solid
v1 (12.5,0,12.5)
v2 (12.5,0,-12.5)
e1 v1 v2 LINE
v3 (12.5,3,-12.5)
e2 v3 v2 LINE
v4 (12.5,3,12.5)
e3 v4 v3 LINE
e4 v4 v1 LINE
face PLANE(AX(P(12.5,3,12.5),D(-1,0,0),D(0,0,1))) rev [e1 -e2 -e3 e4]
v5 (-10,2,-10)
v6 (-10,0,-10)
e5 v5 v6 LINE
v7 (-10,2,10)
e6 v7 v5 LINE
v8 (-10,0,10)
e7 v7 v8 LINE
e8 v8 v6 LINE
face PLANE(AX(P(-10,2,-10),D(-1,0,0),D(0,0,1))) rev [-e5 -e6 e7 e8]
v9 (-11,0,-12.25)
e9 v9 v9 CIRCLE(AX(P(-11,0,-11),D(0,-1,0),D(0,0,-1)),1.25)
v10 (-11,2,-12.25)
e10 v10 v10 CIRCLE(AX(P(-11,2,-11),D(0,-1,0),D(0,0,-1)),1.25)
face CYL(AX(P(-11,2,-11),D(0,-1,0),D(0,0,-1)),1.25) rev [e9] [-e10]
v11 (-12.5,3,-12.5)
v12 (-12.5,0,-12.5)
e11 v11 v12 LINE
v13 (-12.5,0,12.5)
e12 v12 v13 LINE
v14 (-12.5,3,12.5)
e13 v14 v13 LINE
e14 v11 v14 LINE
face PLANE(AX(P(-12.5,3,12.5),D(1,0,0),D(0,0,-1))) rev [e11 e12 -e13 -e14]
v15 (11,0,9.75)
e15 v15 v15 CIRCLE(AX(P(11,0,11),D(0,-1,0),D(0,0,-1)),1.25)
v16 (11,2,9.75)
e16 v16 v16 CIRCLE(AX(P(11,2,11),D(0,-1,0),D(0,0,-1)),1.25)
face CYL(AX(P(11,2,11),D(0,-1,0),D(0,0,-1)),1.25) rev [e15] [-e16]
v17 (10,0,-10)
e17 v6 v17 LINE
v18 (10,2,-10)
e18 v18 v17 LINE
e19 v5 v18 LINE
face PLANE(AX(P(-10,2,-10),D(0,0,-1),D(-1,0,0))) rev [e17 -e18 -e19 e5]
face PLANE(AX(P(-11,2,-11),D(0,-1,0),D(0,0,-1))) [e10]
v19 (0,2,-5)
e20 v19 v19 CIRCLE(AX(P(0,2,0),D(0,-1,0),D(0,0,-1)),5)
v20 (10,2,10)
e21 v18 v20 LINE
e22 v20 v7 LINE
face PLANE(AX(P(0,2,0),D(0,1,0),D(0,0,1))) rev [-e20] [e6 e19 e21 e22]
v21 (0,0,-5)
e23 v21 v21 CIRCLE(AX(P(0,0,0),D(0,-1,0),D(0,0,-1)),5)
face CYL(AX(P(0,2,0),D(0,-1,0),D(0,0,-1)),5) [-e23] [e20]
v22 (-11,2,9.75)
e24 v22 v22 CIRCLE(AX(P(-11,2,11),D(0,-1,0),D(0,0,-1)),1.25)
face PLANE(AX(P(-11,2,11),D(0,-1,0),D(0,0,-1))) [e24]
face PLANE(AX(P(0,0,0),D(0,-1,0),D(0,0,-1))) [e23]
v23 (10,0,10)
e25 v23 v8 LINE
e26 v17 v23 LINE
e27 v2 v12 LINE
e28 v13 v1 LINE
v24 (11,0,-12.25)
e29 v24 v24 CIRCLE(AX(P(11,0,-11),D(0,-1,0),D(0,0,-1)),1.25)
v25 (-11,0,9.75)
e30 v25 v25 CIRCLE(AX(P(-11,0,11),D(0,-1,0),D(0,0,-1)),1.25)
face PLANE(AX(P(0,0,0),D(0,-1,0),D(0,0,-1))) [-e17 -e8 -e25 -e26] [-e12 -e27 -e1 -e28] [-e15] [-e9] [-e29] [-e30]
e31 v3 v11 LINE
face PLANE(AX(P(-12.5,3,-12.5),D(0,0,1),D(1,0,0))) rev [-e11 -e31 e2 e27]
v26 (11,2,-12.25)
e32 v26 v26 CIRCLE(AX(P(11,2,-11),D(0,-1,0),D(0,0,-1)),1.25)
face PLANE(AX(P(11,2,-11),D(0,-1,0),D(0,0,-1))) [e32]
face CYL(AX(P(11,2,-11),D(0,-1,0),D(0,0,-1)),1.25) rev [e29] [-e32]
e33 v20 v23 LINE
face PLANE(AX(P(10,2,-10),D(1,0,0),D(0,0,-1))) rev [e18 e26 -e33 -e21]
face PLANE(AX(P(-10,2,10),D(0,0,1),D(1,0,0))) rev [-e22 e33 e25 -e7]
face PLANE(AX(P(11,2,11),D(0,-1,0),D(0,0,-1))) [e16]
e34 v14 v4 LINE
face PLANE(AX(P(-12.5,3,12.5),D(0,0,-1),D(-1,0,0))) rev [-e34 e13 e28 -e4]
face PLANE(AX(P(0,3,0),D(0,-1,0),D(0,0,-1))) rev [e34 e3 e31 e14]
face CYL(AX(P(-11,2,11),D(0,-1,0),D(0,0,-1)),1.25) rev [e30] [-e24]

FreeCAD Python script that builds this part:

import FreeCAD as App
import Part
import Sketcher

V = App.Vector
Q = App.Units.Quantity

doc = App.newDocument("Part")
params = doc.addObject("Spreadsheet::Sheet", "Params")
for row, (alias, value) in enumerate([
    ("sketch1_width", "25 mm"),
    ("pad1_length", "3 mm"),
    ("sketch2_diameter", "10 mm"),
    ("sketch2_width", "20 mm"),
    ("pocket1_length", "2 mm"),
    ("sketch3_diameter", "2.5 mm"),
    ("pocket2_length", "2 mm"),
], start=1):
    params.set(f"A{row}", alias)
    params.set(f"B{row}", "=" + value)
    params.setAlias(f"B{row}", alias)

body = doc.addObject("PartDesign::Body", "Body")

# Sketch on XZ plane
sketch1 = body.newObject("Sketcher::SketchObject", "Sketch")
sketch1.AttachmentSupport = (doc.getObject("XZ_Plane"), [""])
sketch1.MapMode = "FlatFace"
sketch1.addGeometry([
    Part.LineSegment(V(-12.5, -12.5, 0), V(-12.5, 12.5, 0)),
    Part.LineSegment(V(-12.5, 12.5, 0), V(12.5, 12.5, 0)),
    Part.LineSegment(V(12.5, 12.5, 0), V(12.5, -12.5, 0)),
    Part.LineSegment(V(12.5, -12.5, 0), V(-12.5, -12.5, 0)),
], False)
sketch1.addConstraint([
    Sketcher.Constraint("Coincident", 0, 2, 1, 1),
    Sketcher.Constraint("Coincident", 1, 2, 2, 1),
    Sketcher.Constraint("Coincident", 2, 2, 3, 1),
    Sketcher.Constraint("Coincident", 3, 2, 0, 1),
    Sketcher.Constraint("Vertical", 0),
    Sketcher.Constraint("Horizontal", 1),
    Sketcher.Constraint("Vertical", 2),
    Sketcher.Constraint("Horizontal", 3),
    Sketcher.Constraint("Symmetric", 0, 2, 2, 2, -1, 1),
    Sketcher.Constraint("Equal", 3, 0),
    Sketcher.Constraint("DistanceX", 1, 1, 1, 2, Q("25 mm")),
])
sketch1.setExpression("Constraints[10]", "Params.sketch1_width")
pad1 = body.newObject("PartDesign::Pad", "Pad")
pad1.Profile = sketch1
pad1.setExpression("Length", "Params.pad1_length")
pad1.Reversed = True

# Sketch on XZ plane
sketch2 = body.newObject("Sketcher::SketchObject", "Sketch001")
sketch2.AttachmentSupport = (doc.getObject("XZ_Plane"), [""])
sketch2.MapMode = "FlatFace"
sketch2.addGeometry([
    Part.LineSegment(V(-10, 10, 0), V(-10, -10, 0)),  # 0
    Part.LineSegment(V(-10, -10, 0), V(10, -10, 0)),  # 1
    Part.LineSegment(V(10, -10, 0), V(10, 10, 0)),  # 2
    Part.LineSegment(V(10, 10, 0), V(-10, 10, 0)),  # 3
    Part.Circle(V(0, 0, 0), V(0, 0, 1), 5),  # 4
], False)
sketch2.addConstraint([
    Sketcher.Constraint("Coincident", 0, 2, 1, 1),
    Sketcher.Constraint("Coincident", 1, 2, 2, 1),
    Sketcher.Constraint("Coincident", 2, 2, 3, 1),
    Sketcher.Constraint("Coincident", 3, 2, 0, 1),
    Sketcher.Constraint("Vertical", 0),
    Sketcher.Constraint("Horizontal", 1),
    Sketcher.Constraint("Vertical", 2),
    Sketcher.Constraint("Horizontal", 3),
    Sketcher.Constraint("Coincident", 4, 3, -1, 1),
    Sketcher.Constraint("Symmetric", 0, 2, 2, 2, -1, 1),
    Sketcher.Constraint("Equal", 3, 0),
    Sketcher.Constraint("Diameter", 4, Q("10 mm")),
    Sketcher.Constraint("DistanceX", 1, 1, 1, 2, Q("20 mm")),
])
sketch2.setExpression("Constraints[11]", "Params.sketch2_diameter")
sketch2.setExpression("Constraints[12]", "Params.sketch2_width")
pocket1 = body.newObject("PartDesign::Pocket", "Pocket")
pocket1.Profile = sketch2
pocket1.setExpression("Length", "Params.pocket1_length")

# Sketch on XZ plane
sketch3 = body.newObject("Sketcher::SketchObject", "Sketch002")
sketch3.AttachmentSupport = (doc.getObject("XZ_Plane"), [""])
sketch3.MapMode = "FlatFace"
sketch3.addGeometry([
    Part.Circle(V(-11, 11, 0), V(0, 0, 1), 1.25),
    Part.Circle(V(11, 11, 0), V(0, 0, 1), 1.25),
    Part.Circle(V(11, -11, 0), V(0, 0, 1), 1.25),
    Part.Circle(V(-11, -11, 0), V(0, 0, 1), 1.25),
], False)
sketch3.addConstraint([
    Sketcher.Constraint("Equal", 0, 1),
    Sketcher.Constraint("Equal", 1, 2),
    Sketcher.Constraint("Equal", 2, 3),
    Sketcher.Constraint("Symmetric", 0, 3, 2, 3, -1, 1),
    Sketcher.Constraint("Symmetric", 1, 3, 3, 3, -1, 1),
    Sketcher.Constraint("Symmetric", 0, 3, 1, 3, -2),
    Sketcher.Constraint("Diameter", 0, Q("2.5 mm")),
    Sketcher.Constraint("DistanceX", 0, 3, -1, 1, Q("11 mm")),
    Sketcher.Constraint("DistanceY", -1, 1, 0, 3, Q("11 mm")),
])
sketch3.setExpression("Constraints[6]", "Params.sketch3_diameter")
pocket2 = body.newObject("PartDesign::Pocket", "Pocket001")
pocket2.Profile = sketch3
pocket2.setExpression("Length", "Params.pocket2_length")

doc.recompute()
